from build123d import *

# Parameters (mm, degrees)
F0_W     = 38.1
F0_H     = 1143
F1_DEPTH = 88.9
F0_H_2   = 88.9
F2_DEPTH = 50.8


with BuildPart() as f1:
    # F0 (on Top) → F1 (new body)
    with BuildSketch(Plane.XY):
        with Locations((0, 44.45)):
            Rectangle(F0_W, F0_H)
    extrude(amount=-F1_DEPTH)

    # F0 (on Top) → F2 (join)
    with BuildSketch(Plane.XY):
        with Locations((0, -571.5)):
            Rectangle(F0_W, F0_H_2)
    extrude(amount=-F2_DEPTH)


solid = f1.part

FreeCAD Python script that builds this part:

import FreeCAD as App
import Part
import Sketcher
Q = App.Units.Quantity

doc = App.newDocument("Part")
params = doc.addObject("Spreadsheet::Sheet", "Params")
for row, (alias, value) in enumerate([
    ("sketch1_height", "45 in"),
    ("sketch1_width", "1.5 in"),
    ("pad1_length", "3.5 in"),
    ("sketch2_width", "1.5 in"),
    ("sketch2_height", "3.5 in"),
    ("pad2_length", "2 in"),
], start=1):
    params.set(f"A{row}", alias)
    params.set(f"B{row}", "=" + value)
    params.setAlias(f"B{row}", alias)

body = doc.addObject("PartDesign::Body", "Body")

# Sketch on XY plane
sketch1 = body.newObject("Sketcher::SketchObject", "Sketch")
sketch1.AttachmentSupport = (doc.getObject("XY_Plane"), [""])
sketch1.MapMode = "FlatFace"
sketch1.addGeometry([
    Part.LineSegment(App.Vector(-19, 616, 0), App.Vector(-19, -527, 0)),
    Part.LineSegment(App.Vector(-19, -527, 0), App.Vector(19, -527, 0)),
    Part.LineSegment(App.Vector(19, -527, 0), App.Vector(19, 616, 0)),
    Part.LineSegment(App.Vector(19, 616, 0), App.Vector(-19, 616, 0)),
], False)
sketch1.addConstraint([
    Sketcher.Constraint("Coincident", 0, 2, 1, 1),
    Sketcher.Constraint("Coincident", 1, 2, 2, 1),
    Sketcher.Constraint("Coincident", 2, 2, 3, 1),
    Sketcher.Constraint("Coincident", 3, 2, 0, 1),
    Sketcher.Constraint("Vertical", 0),
    Sketcher.Constraint("Horizontal", 1),
    Sketcher.Constraint("Vertical", 2),
    Sketcher.Constraint("Horizontal", 3),
    Sketcher.Constraint("DistanceY", 0, 2, 0, 1, Q("45 in")),
    Sketcher.Constraint("DistanceX", 1, 1, 1, 2, Q("1.5 in")),
    Sketcher.Constraint("DistanceX", 0, 2, -1, 1, Q("0.75 in")),
    Sketcher.Constraint("DistanceY", 0, 2, -1, 1, Q("20.75 in")),
])
sketch1.setExpression("Constraints[8]", "Params.sketch1_height")
sketch1.setExpression("Constraints[9]", "Params.sketch1_width")
pad1 = body.newObject("PartDesign::Pad", "Pad")
pad1.Profile = sketch1
pad1.setExpression("Length", "Params.pad1_length")
pad1.Reversed = True

# Sketch on XY plane
sketch2 = body.newObject("Sketcher::SketchObject", "Sketch001")
sketch2.AttachmentSupport = (doc.getObject("XY_Plane"), [""])
sketch2.MapMode = "FlatFace"
sketch2.addGeometry([
    Part.LineSegment(App.Vector(-19, -527, 0), App.Vector(-19, -616, 0)),
    Part.LineSegment(App.Vector(-19, -616, 0), App.Vector(19, -616, 0)),
    Part.LineSegment(App.Vector(19, -616, 0), App.Vector(19, -527, 0)),
    Part.LineSegment(App.Vector(19, -527, 0), App.Vector(-19, -527, 0)),
], False)
sketch2.addConstraint([
    Sketcher.Constraint("Coincident", 0, 2, 1, 1),
    Sketcher.Constraint("Coincident", 1, 2, 2, 1),
    Sketcher.Constraint("Coincident", 2, 2, 3, 1),
    Sketcher.Constraint("Coincident", 3, 2, 0, 1),
    Sketcher.Constraint("Vertical", 0),
    Sketcher.Constraint("Horizontal", 1),
    Sketcher.Constraint("Vertical", 2),
    Sketcher.Constraint("Horizontal", 3),
    Sketcher.Constraint("DistanceX", 1, 1, 1, 2, Q("1.5 in")),
    Sketcher.Constraint("DistanceY", 0, 2, 0, 1, Q("3.5 in")),
    Sketcher.Constraint("DistanceX", 0, 2, -1, 1, Q("0.75 in")),
    Sketcher.Constraint("DistanceY", 0, 2, -1, 1, Q("24.25 in")),
])
sketch2.setExpression("Constraints[8]", "Params.sketch2_width")
sketch2.setExpression("Constraints[9]", "Params.sketch2_height")
pad2 = body.newObject("PartDesign::Pad", "Pad001")
pad2.Profile = sketch2
pad2.setExpression("Length", "Params.pad2_length")
pad2.Reversed = True

doc.recompute()
